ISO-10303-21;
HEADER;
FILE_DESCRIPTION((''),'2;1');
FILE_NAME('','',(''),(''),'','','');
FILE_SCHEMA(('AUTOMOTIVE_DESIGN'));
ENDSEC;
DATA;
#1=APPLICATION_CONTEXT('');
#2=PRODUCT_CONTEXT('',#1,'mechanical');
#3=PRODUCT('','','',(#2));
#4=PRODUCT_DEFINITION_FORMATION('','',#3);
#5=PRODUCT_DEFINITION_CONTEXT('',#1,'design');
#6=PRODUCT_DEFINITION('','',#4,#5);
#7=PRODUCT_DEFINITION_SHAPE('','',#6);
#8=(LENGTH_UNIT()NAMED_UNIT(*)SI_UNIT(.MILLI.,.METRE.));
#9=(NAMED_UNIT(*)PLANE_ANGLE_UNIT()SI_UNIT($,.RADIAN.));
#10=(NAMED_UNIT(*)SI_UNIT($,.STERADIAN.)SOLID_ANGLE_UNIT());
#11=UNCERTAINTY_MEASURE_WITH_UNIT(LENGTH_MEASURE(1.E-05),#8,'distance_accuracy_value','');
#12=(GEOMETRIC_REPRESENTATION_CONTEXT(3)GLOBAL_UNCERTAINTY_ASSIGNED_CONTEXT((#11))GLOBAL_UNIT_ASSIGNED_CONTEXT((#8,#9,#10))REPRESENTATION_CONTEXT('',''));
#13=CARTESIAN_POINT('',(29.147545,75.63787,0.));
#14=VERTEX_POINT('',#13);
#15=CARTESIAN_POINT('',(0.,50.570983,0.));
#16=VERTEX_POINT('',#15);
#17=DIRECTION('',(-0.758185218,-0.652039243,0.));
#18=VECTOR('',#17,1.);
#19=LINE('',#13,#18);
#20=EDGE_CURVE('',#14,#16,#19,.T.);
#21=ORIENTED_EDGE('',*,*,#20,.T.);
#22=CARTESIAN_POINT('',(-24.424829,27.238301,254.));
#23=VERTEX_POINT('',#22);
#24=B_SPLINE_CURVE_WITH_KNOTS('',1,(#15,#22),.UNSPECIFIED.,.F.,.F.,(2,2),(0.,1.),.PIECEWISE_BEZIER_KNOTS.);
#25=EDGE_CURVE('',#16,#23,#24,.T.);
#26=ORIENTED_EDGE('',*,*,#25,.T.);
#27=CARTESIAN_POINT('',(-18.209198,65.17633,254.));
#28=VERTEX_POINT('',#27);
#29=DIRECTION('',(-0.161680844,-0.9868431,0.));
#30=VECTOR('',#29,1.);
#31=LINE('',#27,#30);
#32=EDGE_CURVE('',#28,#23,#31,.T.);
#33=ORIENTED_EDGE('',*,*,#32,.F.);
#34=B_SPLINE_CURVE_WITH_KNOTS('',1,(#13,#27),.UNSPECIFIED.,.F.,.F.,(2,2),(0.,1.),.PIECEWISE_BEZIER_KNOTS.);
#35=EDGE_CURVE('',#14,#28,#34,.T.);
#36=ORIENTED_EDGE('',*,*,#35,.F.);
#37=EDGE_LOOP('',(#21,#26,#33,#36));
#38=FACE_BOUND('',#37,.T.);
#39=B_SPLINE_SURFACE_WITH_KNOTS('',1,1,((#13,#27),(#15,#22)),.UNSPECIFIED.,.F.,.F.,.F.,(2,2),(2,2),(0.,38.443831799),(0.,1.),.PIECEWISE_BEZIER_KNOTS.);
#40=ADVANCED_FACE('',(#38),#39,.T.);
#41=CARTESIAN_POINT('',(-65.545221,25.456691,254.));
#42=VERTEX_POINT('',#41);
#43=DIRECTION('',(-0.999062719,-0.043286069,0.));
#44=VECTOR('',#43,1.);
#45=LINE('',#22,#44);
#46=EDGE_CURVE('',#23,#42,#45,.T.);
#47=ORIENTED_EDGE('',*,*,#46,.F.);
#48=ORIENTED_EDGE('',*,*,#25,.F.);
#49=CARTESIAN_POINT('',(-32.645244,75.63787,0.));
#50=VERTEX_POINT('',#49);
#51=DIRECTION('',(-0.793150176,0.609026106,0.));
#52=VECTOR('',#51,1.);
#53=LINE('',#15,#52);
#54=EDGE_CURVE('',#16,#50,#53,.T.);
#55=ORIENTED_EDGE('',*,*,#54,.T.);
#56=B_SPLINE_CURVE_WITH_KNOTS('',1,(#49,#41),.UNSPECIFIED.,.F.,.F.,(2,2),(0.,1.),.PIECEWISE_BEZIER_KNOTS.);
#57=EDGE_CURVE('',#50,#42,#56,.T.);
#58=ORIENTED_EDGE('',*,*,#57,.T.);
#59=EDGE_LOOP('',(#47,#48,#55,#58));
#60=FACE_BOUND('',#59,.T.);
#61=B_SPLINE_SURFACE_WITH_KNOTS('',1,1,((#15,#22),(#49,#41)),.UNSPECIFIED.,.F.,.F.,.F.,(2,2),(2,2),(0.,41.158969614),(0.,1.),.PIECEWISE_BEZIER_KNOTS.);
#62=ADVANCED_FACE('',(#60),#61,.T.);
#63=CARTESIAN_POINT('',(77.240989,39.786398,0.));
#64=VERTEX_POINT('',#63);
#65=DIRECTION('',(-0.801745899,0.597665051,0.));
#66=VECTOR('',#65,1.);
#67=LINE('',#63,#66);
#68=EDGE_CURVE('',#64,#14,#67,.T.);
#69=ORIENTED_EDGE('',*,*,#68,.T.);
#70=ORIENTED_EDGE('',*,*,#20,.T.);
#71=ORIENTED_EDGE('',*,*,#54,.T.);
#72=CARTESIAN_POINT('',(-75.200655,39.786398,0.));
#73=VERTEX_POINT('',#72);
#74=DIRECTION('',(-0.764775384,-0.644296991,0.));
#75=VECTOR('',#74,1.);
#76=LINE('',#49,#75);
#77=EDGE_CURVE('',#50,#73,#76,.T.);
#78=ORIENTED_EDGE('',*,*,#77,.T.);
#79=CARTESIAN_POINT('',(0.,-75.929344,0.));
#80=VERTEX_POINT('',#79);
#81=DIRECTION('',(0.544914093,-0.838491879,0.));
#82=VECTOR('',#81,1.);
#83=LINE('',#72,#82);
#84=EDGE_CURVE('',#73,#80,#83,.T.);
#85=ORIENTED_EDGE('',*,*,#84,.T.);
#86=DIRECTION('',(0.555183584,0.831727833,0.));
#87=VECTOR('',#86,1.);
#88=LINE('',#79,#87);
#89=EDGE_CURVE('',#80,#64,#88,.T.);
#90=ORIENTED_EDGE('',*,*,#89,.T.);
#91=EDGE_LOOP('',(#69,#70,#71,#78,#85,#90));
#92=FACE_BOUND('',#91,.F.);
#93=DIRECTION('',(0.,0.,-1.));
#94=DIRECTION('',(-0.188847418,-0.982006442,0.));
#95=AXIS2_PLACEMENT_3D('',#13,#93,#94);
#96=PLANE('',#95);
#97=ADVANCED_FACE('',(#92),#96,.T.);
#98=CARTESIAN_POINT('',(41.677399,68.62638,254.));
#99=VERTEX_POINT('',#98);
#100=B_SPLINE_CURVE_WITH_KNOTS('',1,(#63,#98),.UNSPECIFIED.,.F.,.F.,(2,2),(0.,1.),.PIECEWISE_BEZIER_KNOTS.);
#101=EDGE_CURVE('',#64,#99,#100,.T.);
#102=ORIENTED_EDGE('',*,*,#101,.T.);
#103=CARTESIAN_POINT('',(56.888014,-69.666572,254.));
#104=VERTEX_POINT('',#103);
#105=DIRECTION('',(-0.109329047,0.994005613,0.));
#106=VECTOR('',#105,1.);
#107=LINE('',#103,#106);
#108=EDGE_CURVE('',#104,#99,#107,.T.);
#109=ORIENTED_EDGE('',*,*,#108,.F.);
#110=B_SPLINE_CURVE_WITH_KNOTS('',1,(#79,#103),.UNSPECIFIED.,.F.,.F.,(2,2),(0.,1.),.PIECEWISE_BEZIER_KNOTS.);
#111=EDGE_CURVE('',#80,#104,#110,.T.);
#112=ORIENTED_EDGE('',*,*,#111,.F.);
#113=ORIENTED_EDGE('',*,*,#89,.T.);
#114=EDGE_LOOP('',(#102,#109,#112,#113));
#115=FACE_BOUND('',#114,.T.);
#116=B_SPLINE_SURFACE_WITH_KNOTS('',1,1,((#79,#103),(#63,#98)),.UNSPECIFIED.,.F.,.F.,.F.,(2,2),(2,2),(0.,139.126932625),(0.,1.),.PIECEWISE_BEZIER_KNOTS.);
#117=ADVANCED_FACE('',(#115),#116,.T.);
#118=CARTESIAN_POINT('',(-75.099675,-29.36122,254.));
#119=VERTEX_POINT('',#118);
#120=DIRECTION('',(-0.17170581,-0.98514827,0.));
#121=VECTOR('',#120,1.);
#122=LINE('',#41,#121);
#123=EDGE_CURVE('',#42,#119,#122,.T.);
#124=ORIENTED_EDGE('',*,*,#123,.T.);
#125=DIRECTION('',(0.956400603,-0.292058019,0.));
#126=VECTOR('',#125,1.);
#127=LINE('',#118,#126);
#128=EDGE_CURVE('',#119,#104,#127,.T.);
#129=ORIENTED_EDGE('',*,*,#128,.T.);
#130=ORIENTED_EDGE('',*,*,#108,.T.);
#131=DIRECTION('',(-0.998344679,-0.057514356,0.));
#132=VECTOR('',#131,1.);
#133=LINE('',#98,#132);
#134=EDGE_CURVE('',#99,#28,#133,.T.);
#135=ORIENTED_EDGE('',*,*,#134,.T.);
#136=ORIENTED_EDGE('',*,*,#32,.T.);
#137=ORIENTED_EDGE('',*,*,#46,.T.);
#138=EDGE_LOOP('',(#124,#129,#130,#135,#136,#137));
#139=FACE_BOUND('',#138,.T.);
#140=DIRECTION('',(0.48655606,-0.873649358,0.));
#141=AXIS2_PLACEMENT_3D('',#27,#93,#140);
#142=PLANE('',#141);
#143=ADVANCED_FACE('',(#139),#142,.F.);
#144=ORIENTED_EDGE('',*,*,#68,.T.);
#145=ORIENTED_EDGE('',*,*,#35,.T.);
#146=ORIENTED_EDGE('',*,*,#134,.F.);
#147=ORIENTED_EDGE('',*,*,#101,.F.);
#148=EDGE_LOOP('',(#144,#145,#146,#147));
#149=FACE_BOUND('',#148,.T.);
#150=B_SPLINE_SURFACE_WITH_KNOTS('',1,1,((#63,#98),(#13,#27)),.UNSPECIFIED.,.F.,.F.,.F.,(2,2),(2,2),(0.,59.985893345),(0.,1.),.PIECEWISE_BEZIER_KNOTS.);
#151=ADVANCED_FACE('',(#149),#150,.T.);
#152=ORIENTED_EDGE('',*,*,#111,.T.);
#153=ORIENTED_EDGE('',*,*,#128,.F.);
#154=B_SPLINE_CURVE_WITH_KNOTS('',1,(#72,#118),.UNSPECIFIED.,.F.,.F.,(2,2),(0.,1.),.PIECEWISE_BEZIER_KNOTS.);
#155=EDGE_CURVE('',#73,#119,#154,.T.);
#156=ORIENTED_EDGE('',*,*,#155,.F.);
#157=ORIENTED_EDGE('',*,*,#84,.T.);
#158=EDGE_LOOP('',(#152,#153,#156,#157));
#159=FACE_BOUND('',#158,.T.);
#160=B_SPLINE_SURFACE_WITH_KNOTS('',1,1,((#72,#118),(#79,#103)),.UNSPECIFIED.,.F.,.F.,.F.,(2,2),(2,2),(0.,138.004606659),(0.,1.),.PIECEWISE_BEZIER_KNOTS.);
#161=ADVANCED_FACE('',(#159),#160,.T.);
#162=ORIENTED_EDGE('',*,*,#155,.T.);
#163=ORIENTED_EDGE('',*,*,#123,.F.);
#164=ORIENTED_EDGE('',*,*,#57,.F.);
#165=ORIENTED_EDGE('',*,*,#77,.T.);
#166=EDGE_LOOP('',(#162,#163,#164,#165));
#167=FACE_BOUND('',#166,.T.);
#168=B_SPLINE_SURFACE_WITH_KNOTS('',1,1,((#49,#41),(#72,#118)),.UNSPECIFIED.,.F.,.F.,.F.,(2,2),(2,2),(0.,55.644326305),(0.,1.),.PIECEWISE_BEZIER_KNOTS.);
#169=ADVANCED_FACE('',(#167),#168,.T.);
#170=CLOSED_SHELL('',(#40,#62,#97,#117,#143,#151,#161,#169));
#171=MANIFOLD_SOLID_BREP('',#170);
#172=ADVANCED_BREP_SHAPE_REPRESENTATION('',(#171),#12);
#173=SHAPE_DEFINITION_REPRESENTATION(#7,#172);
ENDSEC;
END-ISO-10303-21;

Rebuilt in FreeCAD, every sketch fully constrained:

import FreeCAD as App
import Part
import Sketcher
from FreeCAD import Vector


def add_polygon(sketch, points):
    """Adds a closed chain of lines whose ends are joined by coincident constraints."""
    first, n = sketch.GeometryCount, len(points)
    for a, b in zip(points, points[1:] + points[:1]):
        sketch.addGeometry(Part.LineSegment(App.Vector(*a, 0), App.Vector(*b, 0)), False)
    for i in range(n):
        sketch.addConstraint(Sketcher.Constraint("Coincident", first + i, 2, first + (i + 1) % n, 1))

doc = App.newDocument("Part")
body = doc.addObject("PartDesign::Body", "Body")

sketch1 = doc.addObject("Sketcher::SketchObject", "Sketch")
body.addObject(sketch1)
sketch1.AttachmentSupport = (doc.XY_Plane, [""])
sketch1.MapMode = "FlatFace"
add_polygon(sketch1, [(29.147545, 75.63787), (0, 50.570983), (-32.645244, 75.63787), (-75.200655, 39.786398), (0, -75.929344), (77.240989, 39.786398)])
sketch1.addConstraint(Sketcher.Constraint("PointOnObject", 0, 2, -2))
sketch1.addConstraint(Sketcher.Constraint("PointOnObject", 3, 2, -2))
sketch1.addConstraint(Sketcher.Constraint("Horizontal", 2, 2, 4, 2))
sketch1.addConstraint(Sketcher.Constraint("Horizontal", 1, 2, 5, 2))
sketch1.addConstraint(Sketcher.Constraint("DistanceX", 2, 2, 5, 2, 104.3482))
sketch1.addConstraint(Sketcher.Constraint("Distance", 0, 38.443832))
sketch1.addConstraint(Sketcher.Constraint("Distance", 1, 41.15897))
sketch1.addConstraint(Sketcher.Constraint("DistanceY", -1, 1, 1, 2, 75.63787))
sketch1.addConstraint(Sketcher.Constraint("DistanceX", -1, 1, 4, 2, 77.240989))
sketch1.addConstraint(Sketcher.Constraint("DistanceX", 2, 2, 1, 2, 42.555411))
sketch1.addConstraint(Sketcher.Constraint("Distance", 2, 55.644326))
sketch1.addConstraint(Sketcher.Constraint("Distance", 3, 138.004607))

sketch2 = doc.addObject("Sketcher::SketchObject", "Sketch001")
body.addObject(sketch2)
sketch2.AttachmentSupport = (doc.XY_Plane, [""])
sketch2.MapMode = "FlatFace"
sketch2.AttachmentOffset = App.Placement(Vector(0, 0, 254), App.Rotation())
add_polygon(sketch2, [(-18.209198, 65.17633), (-24.424829, 27.238301), (-65.545221, 25.456691), (-75.099675, -29.36122), (56.888014, -69.666572), (41.677399, 68.62638)])
sketch2.addConstraint(Sketcher.Constraint("DistanceY", -1, 1, 0, 2, 27.238301))
sketch2.addConstraint(Sketcher.Constraint("DistanceX", -1, 1, 4, 2, 41.677399))
sketch2.addConstraint(Sketcher.Constraint("DistanceX", 5, 2, -1, 1, 18.209198))
sketch2.addConstraint(Sketcher.Constraint("DistanceY", 2, 2, 4, 2, 97.9876))
sketch2.addConstraint(Sketcher.Constraint("DistanceY", 3, 2, 5, 2, 134.842902))
sketch2.addConstraint(Sketcher.Constraint("Distance", 0, 38.443831))
sketch2.addConstraint(Sketcher.Constraint("Distance", 1, 41.15897))
sketch2.addConstraint(Sketcher.Constraint("DistanceX", 0, 2, -1, 1, 24.424829))
sketch2.addConstraint(Sketcher.Constraint("DistanceX", 1, 2, -1, 1, 65.545221))
sketch2.addConstraint(Sketcher.Constraint("DistanceY", 2, 2, -1, 1, 29.36122))
sketch2.addConstraint(Sketcher.Constraint("DistanceX", 2, 2, 3, 2, 131.987689))
sketch2.addConstraint(Sketcher.Constraint("DistanceX", 5, 2, 3, 2, 75.097212))

additiveloft = doc.addObject("PartDesign::AdditiveLoft", "AdditiveLoft")
body.addObject(additiveloft)
additiveloft.Profile = sketch1
additiveloft.Sections = [sketch2]

doc.recompute()
